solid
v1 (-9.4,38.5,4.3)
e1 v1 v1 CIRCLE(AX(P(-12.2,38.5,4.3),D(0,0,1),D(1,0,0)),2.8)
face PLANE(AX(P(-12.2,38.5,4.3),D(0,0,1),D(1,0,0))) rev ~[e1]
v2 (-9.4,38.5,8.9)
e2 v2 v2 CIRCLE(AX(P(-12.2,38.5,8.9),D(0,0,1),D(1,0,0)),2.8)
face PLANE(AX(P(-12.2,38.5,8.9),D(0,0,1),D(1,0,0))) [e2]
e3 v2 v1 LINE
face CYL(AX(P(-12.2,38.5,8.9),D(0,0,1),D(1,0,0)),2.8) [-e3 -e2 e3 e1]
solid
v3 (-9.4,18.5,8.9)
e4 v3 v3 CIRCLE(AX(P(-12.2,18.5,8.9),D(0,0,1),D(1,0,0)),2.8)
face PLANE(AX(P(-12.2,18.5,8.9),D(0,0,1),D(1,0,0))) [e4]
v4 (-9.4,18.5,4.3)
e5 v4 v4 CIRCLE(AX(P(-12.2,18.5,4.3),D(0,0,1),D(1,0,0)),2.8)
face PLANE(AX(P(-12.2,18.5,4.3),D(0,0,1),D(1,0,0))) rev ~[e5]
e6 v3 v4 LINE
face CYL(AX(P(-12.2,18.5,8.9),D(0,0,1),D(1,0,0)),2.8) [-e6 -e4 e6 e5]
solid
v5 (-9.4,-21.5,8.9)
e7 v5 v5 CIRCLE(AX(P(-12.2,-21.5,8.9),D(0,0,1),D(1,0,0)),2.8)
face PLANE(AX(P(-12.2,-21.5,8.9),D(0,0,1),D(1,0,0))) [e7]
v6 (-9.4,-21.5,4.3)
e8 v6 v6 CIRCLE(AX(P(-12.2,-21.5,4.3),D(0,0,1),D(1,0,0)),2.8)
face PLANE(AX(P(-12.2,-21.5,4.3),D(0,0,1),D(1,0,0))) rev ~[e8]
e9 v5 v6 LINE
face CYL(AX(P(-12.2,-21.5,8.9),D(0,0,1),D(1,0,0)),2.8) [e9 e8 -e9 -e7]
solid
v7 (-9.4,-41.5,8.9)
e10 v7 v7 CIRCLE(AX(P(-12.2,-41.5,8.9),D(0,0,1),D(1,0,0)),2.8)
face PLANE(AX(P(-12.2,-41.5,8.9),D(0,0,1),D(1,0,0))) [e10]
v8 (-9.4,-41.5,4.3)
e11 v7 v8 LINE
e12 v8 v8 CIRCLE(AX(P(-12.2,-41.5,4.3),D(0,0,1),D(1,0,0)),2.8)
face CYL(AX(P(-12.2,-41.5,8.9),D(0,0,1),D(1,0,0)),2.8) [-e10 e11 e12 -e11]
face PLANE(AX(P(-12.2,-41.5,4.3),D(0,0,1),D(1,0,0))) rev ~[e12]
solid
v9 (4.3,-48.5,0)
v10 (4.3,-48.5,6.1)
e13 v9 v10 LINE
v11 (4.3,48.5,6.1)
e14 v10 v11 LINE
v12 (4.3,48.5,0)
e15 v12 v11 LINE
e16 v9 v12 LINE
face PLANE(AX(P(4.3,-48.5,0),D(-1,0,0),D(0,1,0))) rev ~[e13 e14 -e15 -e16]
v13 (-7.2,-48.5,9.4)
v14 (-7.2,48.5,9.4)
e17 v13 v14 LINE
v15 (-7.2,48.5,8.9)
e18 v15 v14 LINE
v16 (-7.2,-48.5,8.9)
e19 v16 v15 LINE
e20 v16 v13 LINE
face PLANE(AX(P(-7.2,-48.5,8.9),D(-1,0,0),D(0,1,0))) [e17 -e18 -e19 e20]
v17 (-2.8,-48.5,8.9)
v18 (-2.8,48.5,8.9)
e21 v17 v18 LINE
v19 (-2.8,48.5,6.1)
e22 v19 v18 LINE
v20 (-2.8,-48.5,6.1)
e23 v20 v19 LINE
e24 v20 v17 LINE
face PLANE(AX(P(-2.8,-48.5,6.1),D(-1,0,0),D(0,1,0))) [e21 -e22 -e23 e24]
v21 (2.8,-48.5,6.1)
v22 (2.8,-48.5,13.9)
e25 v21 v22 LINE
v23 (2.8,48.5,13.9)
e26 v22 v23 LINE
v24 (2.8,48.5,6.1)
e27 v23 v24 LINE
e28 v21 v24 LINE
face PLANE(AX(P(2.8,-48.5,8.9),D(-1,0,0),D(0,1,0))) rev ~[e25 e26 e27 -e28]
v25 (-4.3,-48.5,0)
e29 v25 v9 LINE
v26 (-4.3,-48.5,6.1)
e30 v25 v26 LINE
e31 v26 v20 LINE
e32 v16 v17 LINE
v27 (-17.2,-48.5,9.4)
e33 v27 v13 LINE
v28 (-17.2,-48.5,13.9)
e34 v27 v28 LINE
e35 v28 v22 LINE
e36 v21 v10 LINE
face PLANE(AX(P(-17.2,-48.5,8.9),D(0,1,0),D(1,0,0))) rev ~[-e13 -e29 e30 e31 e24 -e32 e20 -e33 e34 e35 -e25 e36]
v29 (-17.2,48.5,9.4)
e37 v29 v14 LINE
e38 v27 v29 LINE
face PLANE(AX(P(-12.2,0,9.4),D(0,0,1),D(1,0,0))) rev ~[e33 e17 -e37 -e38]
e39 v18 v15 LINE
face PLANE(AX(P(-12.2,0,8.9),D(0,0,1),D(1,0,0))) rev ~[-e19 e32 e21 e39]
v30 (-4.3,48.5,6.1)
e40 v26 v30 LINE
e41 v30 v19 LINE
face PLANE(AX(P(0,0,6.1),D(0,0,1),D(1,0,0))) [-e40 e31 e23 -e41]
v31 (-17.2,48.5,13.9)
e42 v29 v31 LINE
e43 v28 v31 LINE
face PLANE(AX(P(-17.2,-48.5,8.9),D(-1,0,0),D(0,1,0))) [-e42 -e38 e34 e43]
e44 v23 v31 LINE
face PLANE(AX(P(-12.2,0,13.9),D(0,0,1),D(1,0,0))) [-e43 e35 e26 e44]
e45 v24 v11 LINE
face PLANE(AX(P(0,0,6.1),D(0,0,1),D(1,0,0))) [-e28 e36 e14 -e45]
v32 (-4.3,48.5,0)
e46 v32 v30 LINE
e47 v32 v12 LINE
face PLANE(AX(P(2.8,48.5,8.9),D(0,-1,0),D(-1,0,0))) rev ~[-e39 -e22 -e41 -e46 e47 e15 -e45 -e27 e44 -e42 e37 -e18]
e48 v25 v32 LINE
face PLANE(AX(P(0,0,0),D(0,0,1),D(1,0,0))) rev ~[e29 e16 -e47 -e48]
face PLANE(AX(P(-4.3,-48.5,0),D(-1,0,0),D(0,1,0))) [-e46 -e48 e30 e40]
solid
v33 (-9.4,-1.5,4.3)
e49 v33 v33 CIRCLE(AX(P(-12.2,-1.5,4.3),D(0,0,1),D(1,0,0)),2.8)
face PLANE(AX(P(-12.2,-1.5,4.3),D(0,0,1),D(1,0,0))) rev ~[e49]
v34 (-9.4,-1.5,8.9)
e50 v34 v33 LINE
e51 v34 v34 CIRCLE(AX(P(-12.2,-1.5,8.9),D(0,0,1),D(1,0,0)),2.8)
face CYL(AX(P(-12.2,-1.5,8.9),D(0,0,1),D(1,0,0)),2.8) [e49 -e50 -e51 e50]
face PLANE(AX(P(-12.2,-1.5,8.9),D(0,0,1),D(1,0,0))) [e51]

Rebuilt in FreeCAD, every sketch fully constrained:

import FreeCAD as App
import Part
import Sketcher

V = App.Vector
Q = App.Units.Quantity

doc = App.newDocument("Part")
body = doc.addObject("PartDesign::Body", "Body")

sketch1 = body.newObject("Sketcher::SketchObject", "Sketch")
sketch1.AttachmentSupport = (doc.getObject("XY_Plane"), [""])
sketch1.MapMode = "FlatFace"
sketch1.addGeometry([
    Part.LineSegment(V(-4, 48, 0), V(-4, -48, 0)),
    Part.LineSegment(V(-4, -48, 0), V(4, -48, 0)),
    Part.LineSegment(V(4, -48, 0), V(4, 48, 0)),
    Part.LineSegment(V(4, 48, 0), V(-4, 48, 0)),
], False)
sketch1.addConstraint([
    Sketcher.Constraint("Coincident", 0, 2, 1, 1),
    Sketcher.Constraint("Coincident", 1, 2, 2, 1),
    Sketcher.Constraint("Coincident", 2, 2, 3, 1),
    Sketcher.Constraint("Coincident", 3, 2, 0, 1),
    Sketcher.Constraint("Vertical", 0),
    Sketcher.Constraint("Horizontal", 1),
    Sketcher.Constraint("Vertical", 2),
    Sketcher.Constraint("Horizontal", 3),
    Sketcher.Constraint("Symmetric", 0, 2, 2, 2, -1, 1),
    Sketcher.Constraint("DistanceY", 0, 2, 0, 1, Q("97 mm")),
    Sketcher.Constraint("DistanceX", 1, 1, 1, 2, Q("8.6 mm")),
])
pad1 = body.newObject("PartDesign::Pad", "Pad")
pad1.Profile = sketch1
pad1.Length = 6.1

sketch2 = body.newObject("Sketcher::SketchObject", "Sketch001")
sketch2.AttachmentSupport = (doc.getObject("XY_Plane"), [""])
sketch2.MapMode = "FlatFace"
sketch2.AttachmentOffset = App.Placement(V(0, 0, 6.1), App.Rotation())
sketch2.addGeometry([
    Part.LineSegment(V(-3, 48, 0), V(-3, -48, 0)),
    Part.LineSegment(V(-3, -48, 0), V(3, -48, 0)),
    Part.LineSegment(V(3, -48, 0), V(3, 48, 0)),
    Part.LineSegment(V(3, 48, 0), V(-3, 48, 0)),
], False)
sketch2.addConstraint([
    Sketcher.Constraint("Coincident", 0, 2, 1, 1),
    Sketcher.Constraint("Coincident", 1, 2, 2, 1),
    Sketcher.Constraint("Coincident", 2, 2, 3, 1),
    Sketcher.Constraint("Coincident", 3, 2, 0, 1),
    Sketcher.Constraint("Vertical", 0),
    Sketcher.Constraint("Horizontal", 1),
    Sketcher.Constraint("Vertical", 2),
    Sketcher.Constraint("Horizontal", 3),
    Sketcher.Constraint("Symmetric", 0, 2, 2, 2, -1, 1),
    Sketcher.Constraint("DistanceY", 0, 2, 0, 1, Q("97 mm")),
    Sketcher.Constraint("DistanceX", 1, 1, 1, 2, Q("5.6 mm")),
])
pad2 = body.newObject("PartDesign::Pad", "Pad001")
pad2.Profile = sketch2
pad2.Length = 2.8

sketch3 = body.newObject("Sketcher::SketchObject", "Sketch002")
sketch3.AttachmentSupport = (doc.getObject("XY_Plane"), [""])
sketch3.MapMode = "FlatFace"
sketch3.AttachmentOffset = App.Placement(V(0, 0, 8.9), App.Rotation())
sketch3.addGeometry([
    Part.LineSegment(V(-17, 48, 0), V(-17, -48, 0)),
    Part.LineSegment(V(-17, -48, 0), V(3, -48, 0)),
    Part.LineSegment(V(3, -48, 0), V(3, 48, 0)),
    Part.LineSegment(V(3, 48, 0), V(-17, 48, 0)),
], False)
sketch3.addConstraint([
    Sketcher.Constraint("Coincident", 0, 2, 1, 1),
    Sketcher.Constraint("Coincident", 1, 2, 2, 1),
    Sketcher.Constraint("Coincident", 2, 2, 3, 1),
    Sketcher.Constraint("Coincident", 3, 2, 0, 1),
    Sketcher.Constraint("Vertical", 0),
    Sketcher.Constraint("Horizontal", 1),
    Sketcher.Constraint("Vertical", 2),
    Sketcher.Constraint("Horizontal", 3),
    Sketcher.Constraint("DistanceX", 1, 1, 1, 2, Q("20 mm")),
    Sketcher.Constraint("DistanceY", 0, 2, 0, 1, Q("97 mm")),
    Sketcher.Constraint("DistanceX", 0, 2, -1, 1, Q("17.2 mm")),
    Sketcher.Constraint("DistanceY", 0, 2, -1, 1, Q("48.5 mm")),
])
pad3 = body.newObject("PartDesign::Pad", "Pad002")
pad3.Profile = sketch3
pad3.Length = 5

sketch4 = body.newObject("Sketcher::SketchObject", "Sketch003")
sketch4.AttachmentSupport = (doc.getObject("XY_Plane"), [""])
sketch4.MapMode = "FlatFace"
sketch4.AttachmentOffset = App.Placement(V(0, 0, 8.9), App.Rotation())
sketch4.addGeometry([
    Part.LineSegment(V(-17, 48, 0), V(-17, -48, 0)),
    Part.LineSegment(V(-17, -48, 0), V(-7, -48, 0)),
    Part.LineSegment(V(-7, -48, 0), V(-7, 48, 0)),
    Part.LineSegment(V(-7, 48, 0), V(-17, 48, 0)),
], False)
sketch4.addConstraint([
    Sketcher.Constraint("Coincident", 0, 2, 1, 1),
    Sketcher.Constraint("Coincident", 1, 2, 2, 1),
    Sketcher.Constraint("Coincident", 2, 2, 3, 1),
    Sketcher.Constraint("Coincident", 3, 2, 0, 1),
    Sketcher.Constraint("Vertical", 0),
    Sketcher.Constraint("Horizontal", 1),
    Sketcher.Constraint("Vertical", 2),
    Sketcher.Constraint("Horizontal", 3),
    Sketcher.Constraint("DistanceX", 1, 1, 1, 2, Q("10 mm")),
    Sketcher.Constraint("DistanceY", 0, 2, 0, 1, Q("97 mm")),
    Sketcher.Constraint("DistanceX", 0, 2, -1, 1, Q("17.2 mm")),
    Sketcher.Constraint("DistanceY", 0, 2, -1, 1, Q("48.5 mm")),
])
pocket1 = body.newObject("PartDesign::Pocket", "Pocket")
pocket1.Profile = sketch4
pocket1.Length = 0.5
pocket1.Reversed = True
body2 = doc.addObject("PartDesign::Body", "Body001")
body2.AllowCompound = True

sketch5 = body2.newObject("Sketcher::SketchObject", "Sketch004")
sketch5.AttachmentSupport = (doc.getObject("XY_Plane001"), [""])
sketch5.MapMode = "FlatFace"
sketch5.AttachmentOffset = App.Placement(V(0, 0, 8.9), App.Rotation())
sketch5.addGeometry([
    Part.Circle(V(-12.2, 18.5, 0), V(0, 0, 1), 2.8),
    Part.Circle(V(-12.2, -1.5, 0), V(0, 0, 1), 2.8),
    Part.Circle(V(-12.2, -21.5, 0), V(0, 0, 1), 2.8),
    Part.Circle(V(-12.2, -41.5, 0), V(0, 0, 1), 2.8),
    Part.Circle(V(-12.2, 38.5, 0), V(0, 0, 1), 2.8),
], False)
sketch5.addConstraint([
    Sketcher.Constraint("Equal", 0, 1),
    Sketcher.Constraint("Equal", 1, 2),
    Sketcher.Constraint("Equal", 2, 3),
    Sketcher.Constraint("Equal", 3, 4),
    Sketcher.Constraint("Vertical", 0, 3, 1, 3),
    Sketcher.Constraint("Vertical", 1, 3, 2, 3),
    Sketcher.Constraint("Vertical", 2, 3, 3, 3),
    Sketcher.Constraint("Vertical", 3, 3, 4, 3),
    Sketcher.Constraint("Diameter", 0, Q("5.6 mm")),
    Sketcher.Constraint("DistanceY", 1, 3, 0, 3, Q("20 mm")),
    Sketcher.Constraint("DistanceY", 2, 3, 1, 3, Q("20 mm")),
    Sketcher.Constraint("DistanceY", 3, 3, 2, 3, Q("20 mm")),
    Sketcher.Constraint("DistanceY", 0, 3, 4, 3, Q("20 mm")),
    Sketcher.Constraint("DistanceX", 0, 3, -1, 1, Q("12.2 mm")),
    Sketcher.Constraint("DistanceY", -1, 1, 0, 3, Q("18.5 mm")),
])
pad4 = body2.newObject("PartDesign::Pad", "Pad003")
pad4.Profile = sketch5
pad4.Length = 4.6
pad4.Reversed = True

doc.recompute()
